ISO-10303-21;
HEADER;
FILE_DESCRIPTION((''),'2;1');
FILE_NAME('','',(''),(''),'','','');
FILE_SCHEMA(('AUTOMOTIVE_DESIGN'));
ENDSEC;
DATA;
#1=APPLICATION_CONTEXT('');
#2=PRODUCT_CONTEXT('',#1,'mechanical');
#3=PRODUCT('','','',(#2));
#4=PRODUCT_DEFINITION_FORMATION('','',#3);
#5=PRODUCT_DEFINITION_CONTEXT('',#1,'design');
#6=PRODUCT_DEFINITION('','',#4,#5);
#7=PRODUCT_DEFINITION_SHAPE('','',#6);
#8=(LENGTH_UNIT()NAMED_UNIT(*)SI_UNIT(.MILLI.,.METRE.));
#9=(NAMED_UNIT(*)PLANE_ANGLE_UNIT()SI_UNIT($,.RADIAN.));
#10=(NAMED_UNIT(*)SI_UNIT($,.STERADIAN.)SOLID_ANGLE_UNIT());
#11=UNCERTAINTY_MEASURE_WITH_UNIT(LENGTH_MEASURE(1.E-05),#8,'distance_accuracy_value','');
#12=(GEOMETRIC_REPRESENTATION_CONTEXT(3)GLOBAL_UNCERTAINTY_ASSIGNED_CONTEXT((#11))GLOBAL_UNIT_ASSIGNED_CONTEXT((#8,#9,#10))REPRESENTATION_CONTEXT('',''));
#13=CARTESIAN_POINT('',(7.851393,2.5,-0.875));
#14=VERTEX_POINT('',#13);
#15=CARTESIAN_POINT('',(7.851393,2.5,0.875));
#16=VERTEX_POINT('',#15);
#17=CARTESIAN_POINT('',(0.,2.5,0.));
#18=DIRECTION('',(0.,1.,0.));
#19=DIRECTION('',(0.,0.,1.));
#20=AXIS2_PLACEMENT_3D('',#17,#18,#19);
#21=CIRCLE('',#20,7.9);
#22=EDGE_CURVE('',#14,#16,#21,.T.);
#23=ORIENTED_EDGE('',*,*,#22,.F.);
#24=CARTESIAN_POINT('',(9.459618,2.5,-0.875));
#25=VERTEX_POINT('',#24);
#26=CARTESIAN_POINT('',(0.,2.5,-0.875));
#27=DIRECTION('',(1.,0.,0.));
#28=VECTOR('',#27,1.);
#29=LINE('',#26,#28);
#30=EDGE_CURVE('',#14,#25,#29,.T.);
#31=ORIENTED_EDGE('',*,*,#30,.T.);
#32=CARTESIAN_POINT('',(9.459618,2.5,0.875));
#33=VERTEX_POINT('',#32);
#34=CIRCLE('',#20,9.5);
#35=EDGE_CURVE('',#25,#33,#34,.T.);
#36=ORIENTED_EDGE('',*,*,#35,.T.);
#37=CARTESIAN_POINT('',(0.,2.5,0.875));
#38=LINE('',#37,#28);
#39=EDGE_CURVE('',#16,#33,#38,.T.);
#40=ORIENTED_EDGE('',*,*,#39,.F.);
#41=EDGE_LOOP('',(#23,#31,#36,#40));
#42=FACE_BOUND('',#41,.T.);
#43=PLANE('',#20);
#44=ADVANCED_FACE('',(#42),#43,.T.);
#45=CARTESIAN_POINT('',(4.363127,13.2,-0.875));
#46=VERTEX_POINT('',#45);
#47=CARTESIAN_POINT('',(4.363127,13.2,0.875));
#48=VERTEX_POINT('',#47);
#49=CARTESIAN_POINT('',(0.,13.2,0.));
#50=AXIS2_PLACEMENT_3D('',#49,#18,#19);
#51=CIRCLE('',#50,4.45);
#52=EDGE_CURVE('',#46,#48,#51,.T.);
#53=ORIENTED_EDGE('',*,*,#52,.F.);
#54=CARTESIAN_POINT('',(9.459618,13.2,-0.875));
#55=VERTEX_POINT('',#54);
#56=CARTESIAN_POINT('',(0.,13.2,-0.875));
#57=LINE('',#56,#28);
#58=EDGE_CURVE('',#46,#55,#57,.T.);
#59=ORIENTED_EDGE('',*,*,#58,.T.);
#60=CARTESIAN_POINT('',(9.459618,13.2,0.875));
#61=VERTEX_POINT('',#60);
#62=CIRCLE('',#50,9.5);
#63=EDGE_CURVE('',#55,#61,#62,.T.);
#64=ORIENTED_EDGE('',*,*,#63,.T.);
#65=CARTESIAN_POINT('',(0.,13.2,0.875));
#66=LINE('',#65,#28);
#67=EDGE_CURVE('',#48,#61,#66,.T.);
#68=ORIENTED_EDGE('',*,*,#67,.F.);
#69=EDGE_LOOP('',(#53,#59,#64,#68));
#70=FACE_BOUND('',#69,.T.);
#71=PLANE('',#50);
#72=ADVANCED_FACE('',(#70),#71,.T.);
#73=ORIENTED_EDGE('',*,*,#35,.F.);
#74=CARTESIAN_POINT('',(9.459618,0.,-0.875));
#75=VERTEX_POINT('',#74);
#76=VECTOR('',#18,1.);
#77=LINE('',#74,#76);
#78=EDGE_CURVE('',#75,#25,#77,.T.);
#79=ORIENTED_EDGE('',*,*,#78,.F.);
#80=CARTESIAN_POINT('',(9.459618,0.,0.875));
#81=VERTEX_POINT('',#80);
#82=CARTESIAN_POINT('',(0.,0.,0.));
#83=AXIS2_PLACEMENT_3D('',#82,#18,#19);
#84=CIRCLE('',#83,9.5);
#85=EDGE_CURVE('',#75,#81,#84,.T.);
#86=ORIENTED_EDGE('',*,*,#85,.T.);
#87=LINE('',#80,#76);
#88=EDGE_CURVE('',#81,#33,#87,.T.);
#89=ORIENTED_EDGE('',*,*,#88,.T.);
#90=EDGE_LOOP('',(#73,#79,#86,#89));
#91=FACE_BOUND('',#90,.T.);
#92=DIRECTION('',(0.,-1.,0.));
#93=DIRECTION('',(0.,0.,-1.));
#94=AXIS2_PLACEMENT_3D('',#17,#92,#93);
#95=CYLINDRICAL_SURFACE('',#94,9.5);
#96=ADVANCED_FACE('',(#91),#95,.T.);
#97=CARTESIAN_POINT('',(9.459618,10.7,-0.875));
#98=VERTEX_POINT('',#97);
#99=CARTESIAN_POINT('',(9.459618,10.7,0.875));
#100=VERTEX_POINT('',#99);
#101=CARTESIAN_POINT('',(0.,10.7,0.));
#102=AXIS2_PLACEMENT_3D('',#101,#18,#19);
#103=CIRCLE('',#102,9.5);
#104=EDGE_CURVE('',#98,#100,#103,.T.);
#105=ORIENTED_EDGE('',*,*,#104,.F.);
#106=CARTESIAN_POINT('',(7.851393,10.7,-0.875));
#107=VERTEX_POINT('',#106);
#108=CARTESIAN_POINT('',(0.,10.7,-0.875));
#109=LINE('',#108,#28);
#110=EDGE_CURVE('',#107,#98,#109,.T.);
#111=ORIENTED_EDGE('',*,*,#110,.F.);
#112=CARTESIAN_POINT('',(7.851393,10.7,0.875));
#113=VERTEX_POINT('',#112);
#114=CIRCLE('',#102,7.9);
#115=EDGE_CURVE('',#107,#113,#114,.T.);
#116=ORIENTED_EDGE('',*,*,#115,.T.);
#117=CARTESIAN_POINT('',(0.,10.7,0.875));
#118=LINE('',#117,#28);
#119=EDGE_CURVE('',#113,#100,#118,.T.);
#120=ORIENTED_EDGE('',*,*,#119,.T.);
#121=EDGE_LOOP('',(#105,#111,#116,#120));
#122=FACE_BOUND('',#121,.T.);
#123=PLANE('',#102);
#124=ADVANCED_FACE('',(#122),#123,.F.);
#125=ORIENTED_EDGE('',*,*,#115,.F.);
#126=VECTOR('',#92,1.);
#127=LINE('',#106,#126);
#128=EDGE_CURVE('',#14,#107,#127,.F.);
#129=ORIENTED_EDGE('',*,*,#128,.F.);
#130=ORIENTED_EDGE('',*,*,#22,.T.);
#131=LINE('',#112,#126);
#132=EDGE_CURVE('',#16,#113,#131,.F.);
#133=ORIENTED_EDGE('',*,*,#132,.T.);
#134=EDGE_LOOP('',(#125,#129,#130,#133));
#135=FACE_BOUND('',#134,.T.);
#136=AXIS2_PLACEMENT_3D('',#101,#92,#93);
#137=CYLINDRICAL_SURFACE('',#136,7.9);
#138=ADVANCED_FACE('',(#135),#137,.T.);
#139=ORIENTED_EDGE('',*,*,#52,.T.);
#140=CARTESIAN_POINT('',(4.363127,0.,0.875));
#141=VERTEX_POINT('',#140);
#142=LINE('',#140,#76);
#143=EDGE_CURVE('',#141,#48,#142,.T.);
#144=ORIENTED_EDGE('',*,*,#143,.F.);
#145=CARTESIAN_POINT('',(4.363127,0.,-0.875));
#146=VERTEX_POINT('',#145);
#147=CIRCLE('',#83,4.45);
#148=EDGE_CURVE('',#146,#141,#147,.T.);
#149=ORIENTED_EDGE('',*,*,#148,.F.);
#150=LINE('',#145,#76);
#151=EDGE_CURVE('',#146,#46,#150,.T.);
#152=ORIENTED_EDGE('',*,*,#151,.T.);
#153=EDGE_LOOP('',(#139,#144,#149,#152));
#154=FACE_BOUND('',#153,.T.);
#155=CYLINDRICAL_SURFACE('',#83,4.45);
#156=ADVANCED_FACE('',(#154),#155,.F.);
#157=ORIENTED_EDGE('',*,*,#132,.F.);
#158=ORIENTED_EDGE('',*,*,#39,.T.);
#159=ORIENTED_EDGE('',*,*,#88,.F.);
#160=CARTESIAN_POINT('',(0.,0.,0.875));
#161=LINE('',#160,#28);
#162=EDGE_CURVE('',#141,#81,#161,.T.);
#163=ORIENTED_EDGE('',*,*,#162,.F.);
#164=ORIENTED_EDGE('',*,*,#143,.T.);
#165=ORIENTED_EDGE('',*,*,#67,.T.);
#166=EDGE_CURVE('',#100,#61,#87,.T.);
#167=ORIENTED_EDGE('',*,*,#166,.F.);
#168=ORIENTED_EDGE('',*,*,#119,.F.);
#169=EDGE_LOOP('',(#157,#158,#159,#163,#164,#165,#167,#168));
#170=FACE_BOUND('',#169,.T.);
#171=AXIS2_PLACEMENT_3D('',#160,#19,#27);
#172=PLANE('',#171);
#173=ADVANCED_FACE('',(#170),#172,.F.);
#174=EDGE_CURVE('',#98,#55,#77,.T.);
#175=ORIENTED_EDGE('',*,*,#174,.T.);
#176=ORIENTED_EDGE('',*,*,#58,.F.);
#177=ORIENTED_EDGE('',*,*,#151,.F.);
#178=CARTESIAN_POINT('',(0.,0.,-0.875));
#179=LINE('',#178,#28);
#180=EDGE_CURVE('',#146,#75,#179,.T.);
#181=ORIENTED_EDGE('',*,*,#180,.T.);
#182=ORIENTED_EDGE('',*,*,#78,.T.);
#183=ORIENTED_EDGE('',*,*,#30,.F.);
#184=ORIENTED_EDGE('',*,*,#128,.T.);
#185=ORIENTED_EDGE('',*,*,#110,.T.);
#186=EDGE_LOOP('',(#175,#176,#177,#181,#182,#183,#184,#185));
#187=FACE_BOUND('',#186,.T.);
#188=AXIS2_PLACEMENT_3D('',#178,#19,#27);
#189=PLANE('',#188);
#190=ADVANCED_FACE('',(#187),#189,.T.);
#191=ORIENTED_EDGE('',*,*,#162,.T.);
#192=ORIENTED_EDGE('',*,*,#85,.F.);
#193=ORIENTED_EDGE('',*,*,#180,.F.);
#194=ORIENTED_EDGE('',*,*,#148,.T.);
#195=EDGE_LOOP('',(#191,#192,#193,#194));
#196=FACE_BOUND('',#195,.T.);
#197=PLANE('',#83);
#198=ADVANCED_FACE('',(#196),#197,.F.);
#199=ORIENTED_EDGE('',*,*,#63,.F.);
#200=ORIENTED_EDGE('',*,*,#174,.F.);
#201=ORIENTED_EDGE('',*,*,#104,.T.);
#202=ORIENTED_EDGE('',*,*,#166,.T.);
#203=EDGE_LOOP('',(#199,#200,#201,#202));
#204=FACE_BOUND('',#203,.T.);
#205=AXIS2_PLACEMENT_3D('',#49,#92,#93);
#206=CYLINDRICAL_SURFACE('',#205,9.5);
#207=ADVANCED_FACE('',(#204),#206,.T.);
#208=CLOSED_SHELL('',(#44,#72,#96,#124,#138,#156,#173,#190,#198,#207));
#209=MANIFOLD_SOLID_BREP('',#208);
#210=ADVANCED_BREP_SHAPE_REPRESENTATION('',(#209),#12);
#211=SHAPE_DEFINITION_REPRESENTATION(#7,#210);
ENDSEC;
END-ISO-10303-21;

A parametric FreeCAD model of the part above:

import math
import FreeCAD as App
import Part
import Sketcher

V = App.Vector
Q = App.Units.Quantity

doc = App.newDocument("Part")
body = doc.addObject("PartDesign::Body", "Body")

sketch1 = body.newObject("Sketcher::SketchObject", "Sketch")
sketch1.AttachmentSupport = (doc.getObject("XZ_Plane"), [""])
sketch1.MapMode = "FlatFace"
sketch1.addGeometry(Part.Circle(V(0, 0, 0), V(0, 0, 1), 10), False)
sketch1.addConstraint([
    Sketcher.Constraint("Coincident", 0, 3, -1, 1),
    Sketcher.Constraint("Diameter", 0, Q("19 mm")),
])
pad1 = body.newObject("PartDesign::Pad", "Pad")
pad1.Profile = sketch1
pad1.Length = 2.5
pad1.Reversed = True

sketch2 = body.newObject("Sketcher::SketchObject", "Sketch001")
sketch2.AttachmentSupport = (doc.getObject("XZ_Plane"), [""])
sketch2.MapMode = "FlatFace"
sketch2.AttachmentOffset = App.Placement(V(0, 0, -2.5), App.Rotation())
sketch2.addGeometry(Part.Circle(V(0, 0, 0), V(0, 0, 1), 8), False)
sketch2.addConstraint([
    Sketcher.Constraint("Coincident", 0, 3, -1, 1),
    Sketcher.Constraint("Diameter", 0, Q("15.8 mm")),
])
pad2 = body.newObject("PartDesign::Pad", "Pad001")
pad2.Profile = sketch2
pad2.Length = 8.2
pad2.Reversed = True

sketch3 = body.newObject("Sketcher::SketchObject", "Sketch002")
sketch3.AttachmentSupport = (doc.getObject("XZ_Plane"), [""])
sketch3.MapMode = "FlatFace"
sketch3.AttachmentOffset = App.Placement(V(0, 0, -10.7), App.Rotation())
sketch3.addGeometry(Part.Circle(V(0, 0, 0), V(0, 0, 1), 10), False)
sketch3.addConstraint([
    Sketcher.Constraint("Coincident", 0, 3, -1, 1),
    Sketcher.Constraint("Diameter", 0, Q("19 mm")),
])
pad3 = body.newObject("PartDesign::Pad", "Pad002")
pad3.Profile = sketch3
pad3.Length = 2.5
pad3.Reversed = True

sketch4 = body.newObject("Sketcher::SketchObject", "Sketch003")
sketch4.AttachmentSupport = (doc.getObject("XZ_Plane"), [""])
sketch4.MapMode = "FlatFace"
sketch4.AttachmentOffset = App.Placement(V(0, 0, -13.2), App.Rotation())
sketch4.addGeometry([
    Part.LineSegment(V(4.4, 0.9, 0), V(11, 0.9, 0)),
    Part.LineSegment(V(11, 0.9, 0), V(11, -0.9, 0)),
    Part.LineSegment(V(11, -0.9, 0), V(4.4, -0.9, 0)),
    Part.ArcOfCircle(Part.Circle(V(0, 0, 0), V(0, 0, 1), 4.5), math.radians(11), math.radians(349)),
], False)
sketch4.addConstraint([
    Sketcher.Constraint("Coincident", 0, 2, 1, 1),
    Sketcher.Constraint("Coincident", 1, 2, 2, 1),
    Sketcher.Constraint("Coincident", 2, 2, 3, 2),
    Sketcher.Constraint("Coincident", 3, 1, 0, 1),
    Sketcher.Constraint("Horizontal", 0),
    Sketcher.Constraint("Vertical", 1),
    Sketcher.Constraint("Horizontal", 2),
    Sketcher.Constraint("Coincident", 3, 3, -1, 1),
    Sketcher.Constraint("Vertical", 2, 2, 3, 1),
    Sketcher.Constraint("Radius", 3, Q("4.45 mm")),
    Sketcher.Constraint("DistanceY", 1, 2, 1, 1, Q("1.75 mm")),
    Sketcher.Constraint("DistanceX", 0, 1, 0, 2, Q("6.63423 mm")),
])
pocket1 = body.newObject("PartDesign::Pocket", "Pocket")
pocket1.Profile = sketch4
pocket1.Type = "ThroughAll"
pocket1.Reversed = True

doc.recompute()
